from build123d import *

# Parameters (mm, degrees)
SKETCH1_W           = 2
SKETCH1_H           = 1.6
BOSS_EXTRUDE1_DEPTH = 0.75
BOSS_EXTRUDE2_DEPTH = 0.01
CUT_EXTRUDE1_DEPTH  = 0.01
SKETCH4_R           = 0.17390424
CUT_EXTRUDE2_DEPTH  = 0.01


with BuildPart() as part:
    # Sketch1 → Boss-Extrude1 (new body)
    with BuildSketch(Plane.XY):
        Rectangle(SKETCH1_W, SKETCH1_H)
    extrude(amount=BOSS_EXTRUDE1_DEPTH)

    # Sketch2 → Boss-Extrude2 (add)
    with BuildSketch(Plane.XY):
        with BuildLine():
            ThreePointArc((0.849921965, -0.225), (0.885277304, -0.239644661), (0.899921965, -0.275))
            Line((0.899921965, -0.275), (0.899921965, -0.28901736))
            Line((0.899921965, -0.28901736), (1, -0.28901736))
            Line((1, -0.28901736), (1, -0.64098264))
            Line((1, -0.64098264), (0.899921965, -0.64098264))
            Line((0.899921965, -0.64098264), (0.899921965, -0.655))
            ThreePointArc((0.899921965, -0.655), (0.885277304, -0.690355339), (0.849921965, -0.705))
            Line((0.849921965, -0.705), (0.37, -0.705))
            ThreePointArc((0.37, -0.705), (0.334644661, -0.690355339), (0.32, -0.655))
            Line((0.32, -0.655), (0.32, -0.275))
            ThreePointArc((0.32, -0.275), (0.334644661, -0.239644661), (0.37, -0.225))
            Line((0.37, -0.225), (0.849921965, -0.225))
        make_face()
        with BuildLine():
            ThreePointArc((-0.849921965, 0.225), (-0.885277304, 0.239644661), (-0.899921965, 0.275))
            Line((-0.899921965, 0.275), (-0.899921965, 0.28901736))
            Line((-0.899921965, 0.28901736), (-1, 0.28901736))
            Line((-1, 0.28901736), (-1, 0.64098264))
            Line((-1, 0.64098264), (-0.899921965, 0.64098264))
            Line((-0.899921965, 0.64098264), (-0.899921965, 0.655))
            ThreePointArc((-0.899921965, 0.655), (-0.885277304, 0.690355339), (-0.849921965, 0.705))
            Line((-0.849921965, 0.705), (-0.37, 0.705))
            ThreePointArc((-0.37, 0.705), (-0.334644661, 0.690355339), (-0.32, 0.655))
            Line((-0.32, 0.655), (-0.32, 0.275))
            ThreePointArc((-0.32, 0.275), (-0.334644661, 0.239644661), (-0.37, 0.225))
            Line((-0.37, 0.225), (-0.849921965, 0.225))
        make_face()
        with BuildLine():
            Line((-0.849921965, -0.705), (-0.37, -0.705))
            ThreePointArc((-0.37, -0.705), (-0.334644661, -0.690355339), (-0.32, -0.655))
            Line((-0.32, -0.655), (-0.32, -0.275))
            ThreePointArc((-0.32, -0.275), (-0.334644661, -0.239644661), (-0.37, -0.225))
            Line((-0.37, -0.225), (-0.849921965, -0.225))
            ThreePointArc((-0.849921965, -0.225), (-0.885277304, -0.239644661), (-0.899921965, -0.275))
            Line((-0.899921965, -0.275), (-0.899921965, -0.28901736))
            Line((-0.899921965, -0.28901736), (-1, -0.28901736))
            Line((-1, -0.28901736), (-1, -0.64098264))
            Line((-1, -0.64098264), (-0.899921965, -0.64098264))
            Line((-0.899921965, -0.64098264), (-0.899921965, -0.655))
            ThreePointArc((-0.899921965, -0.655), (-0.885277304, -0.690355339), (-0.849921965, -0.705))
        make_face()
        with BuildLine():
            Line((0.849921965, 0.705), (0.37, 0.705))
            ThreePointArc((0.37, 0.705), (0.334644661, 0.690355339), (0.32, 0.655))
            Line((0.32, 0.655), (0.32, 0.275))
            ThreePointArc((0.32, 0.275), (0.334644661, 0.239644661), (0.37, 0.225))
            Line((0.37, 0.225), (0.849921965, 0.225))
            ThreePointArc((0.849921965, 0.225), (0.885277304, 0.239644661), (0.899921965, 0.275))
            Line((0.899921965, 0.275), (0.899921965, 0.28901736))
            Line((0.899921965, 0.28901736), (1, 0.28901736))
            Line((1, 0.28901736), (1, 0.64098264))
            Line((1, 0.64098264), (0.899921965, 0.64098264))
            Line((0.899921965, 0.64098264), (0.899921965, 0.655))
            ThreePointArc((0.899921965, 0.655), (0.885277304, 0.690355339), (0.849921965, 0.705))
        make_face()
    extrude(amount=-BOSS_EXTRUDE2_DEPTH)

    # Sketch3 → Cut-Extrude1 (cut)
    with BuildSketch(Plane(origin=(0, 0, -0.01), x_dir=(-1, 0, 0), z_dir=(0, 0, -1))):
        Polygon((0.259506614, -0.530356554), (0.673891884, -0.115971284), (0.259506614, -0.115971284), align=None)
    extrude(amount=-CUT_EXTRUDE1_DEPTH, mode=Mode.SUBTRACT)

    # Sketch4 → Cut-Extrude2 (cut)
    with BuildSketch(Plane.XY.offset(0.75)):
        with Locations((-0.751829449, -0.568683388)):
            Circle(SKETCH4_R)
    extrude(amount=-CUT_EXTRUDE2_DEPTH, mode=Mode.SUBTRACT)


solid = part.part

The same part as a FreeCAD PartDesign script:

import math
import FreeCAD as App
import Part
import Sketcher


def add_polygon(sketch, points):
    """Adds a closed chain of lines whose ends are joined by coincident constraints."""
    first, n = sketch.GeometryCount, len(points)
    for a, b in zip(points, points[1:] + points[:1]):
        sketch.addGeometry(Part.LineSegment(App.Vector(*a, 0), App.Vector(*b, 0)), False)
    for i in range(n):
        sketch.addConstraint(Sketcher.Constraint("Coincident", first + i, 2, first + (i + 1) % n, 1))

doc = App.newDocument("Part")
body = doc.addObject("PartDesign::Body", "Body")

sketch1 = doc.addObject("Sketcher::SketchObject", "Sketch")
body.addObject(sketch1)
sketch1.AttachmentSupport = (doc.XY_Plane, [""])
sketch1.MapMode = "FlatFace"
add_polygon(sketch1, [(-1, 0.8), (-1, -0.8), (1, -0.8), (1, 0.8)])
sketch1.addConstraint(Sketcher.Constraint("Vertical", 0))
sketch1.addConstraint(Sketcher.Constraint("Horizontal", 1))
sketch1.addConstraint(Sketcher.Constraint("Vertical", 2))
sketch1.addConstraint(Sketcher.Constraint("Horizontal", 3))
sketch1.addConstraint(Sketcher.Constraint("Symmetric", 0, 2, 2, 2, -1, 1))
sketch1.addConstraint(Sketcher.Constraint("DistanceX", 1, 1, 1, 2, 2.0))
sketch1.addConstraint(Sketcher.Constraint("DistanceY", 0, 2, 0, 1, 1.6))
pad1 = doc.addObject("PartDesign::Pad", "Pad")
body.addObject(pad1)
pad1.Profile = sketch1
pad1.Length = 0.75

sketch2 = doc.addObject("Sketcher::SketchObject", "Sketch001")
body.addObject(sketch2)
sketch2.AttachmentSupport = (doc.XY_Plane, [""])
sketch2.MapMode = "FlatFace"
sketch2.addGeometry(Part.ArcOfCircle(Part.Circle(App.Vector(0.849922, -0.275, 0), App.Vector(0, 0, 1), 0.05), math.radians(0), math.radians(90)), False)
sketch2.addGeometry(Part.LineSegment(App.Vector(0.849922, -0.225, 0), App.Vector(0.37, -0.225, 0)), False)
sketch2.addGeometry(Part.ArcOfCircle(Part.Circle(App.Vector(0.37, -0.275, 0), App.Vector(0, 0, 1), 0.05), math.radians(90), math.radians(180)), False)
sketch2.addGeometry(Part.LineSegment(App.Vector(0.32, -0.275, 0), App.Vector(0.32, -0.655, 0)), False)
sketch2.addGeometry(Part.ArcOfCircle(Part.Circle(App.Vector(0.37, -0.655, 0), App.Vector(0, 0, 1), 0.05), math.radians(180), math.radians(270)), False)
sketch2.addGeometry(Part.LineSegment(App.Vector(0.37, -0.705, 0), App.Vector(0.849922, -0.705, 0)), False)
sketch2.addGeometry(Part.ArcOfCircle(Part.Circle(App.Vector(0.849922, -0.655, 0), App.Vector(0, 0, 1), 0.05), math.radians(-90), math.radians(0)), False)
sketch2.addGeometry(Part.LineSegment(App.Vector(0.899922, -0.655, 0), App.Vector(0.899922, -0.640983, 0)), False)
sketch2.addGeometry(Part.LineSegment(App.Vector(0.899922, -0.640983, 0), App.Vector(1, -0.640983, 0)), False)
sketch2.addGeometry(Part.LineSegment(App.Vector(1, -0.640983, 0), App.Vector(1, -0.289017, 0)), False)
sketch2.addGeometry(Part.LineSegment(App.Vector(1, -0.289017, 0), App.Vector(0.899922, -0.289017, 0)), False)
sketch2.addGeometry(Part.LineSegment(App.Vector(0.899922, -0.289017, 0), App.Vector(0.899922, -0.275, 0)), False)
sketch2.addGeometry(Part.ArcOfCircle(Part.Circle(App.Vector(-0.849922, 0.275, 0), App.Vector(0, 0, 1), 0.05), math.radians(180), math.radians(270)), False)
sketch2.addGeometry(Part.LineSegment(App.Vector(-0.849922, 0.225, 0), App.Vector(-0.37, 0.225, 0)), False)
sketch2.addGeometry(Part.ArcOfCircle(Part.Circle(App.Vector(-0.37, 0.275, 0), App.Vector(0, 0, 1), 0.05), math.radians(-90), math.radians(0)), False)
sketch2.addGeometry(Part.LineSegment(App.Vector(-0.32, 0.275, 0), App.Vector(-0.32, 0.655, 0)), False)
sketch2.addGeometry(Part.ArcOfCircle(Part.Circle(App.Vector(-0.37, 0.655, 0), App.Vector(0, 0, 1), 0.05), math.radians(0), math.radians(90)), False)
sketch2.addGeometry(Part.LineSegment(App.Vector(-0.37, 0.705, 0), App.Vector(-0.849922, 0.705, 0)), False)
sketch2.addGeometry(Part.ArcOfCircle(Part.Circle(App.Vector(-0.849922, 0.655, 0), App.Vector(0, 0, 1), 0.05), math.radians(90), math.radians(180)), False)
sketch2.addGeometry(Part.LineSegment(App.Vector(-0.899922, 0.655, 0), App.Vector(-0.899922, 0.640983, 0)), False)
sketch2.addGeometry(Part.LineSegment(App.Vector(-0.899922, 0.640983, 0), App.Vector(-1, 0.640983, 0)), False)
sketch2.addGeometry(Part.LineSegment(App.Vector(-1, 0.640983, 0), App.Vector(-1, 0.289017, 0)), False)
sketch2.addGeometry(Part.LineSegment(App.Vector(-1, 0.289017, 0), App.Vector(-0.899922, 0.289017, 0)), False)
sketch2.addGeometry(Part.LineSegment(App.Vector(-0.899922, 0.289017, 0), App.Vector(-0.899922, 0.275, 0)), False)
sketch2.addGeometry(Part.LineSegment(App.Vector(-0.849922, -0.705, 0), App.Vector(-0.37, -0.705, 0)), False)
sketch2.addGeometry(Part.ArcOfCircle(Part.Circle(App.Vector(-0.37, -0.655, 0), App.Vector(0, 0, 1), 0.05), math.radians(-90), math.radians(0)), False)
sketch2.addGeometry(Part.LineSegment(App.Vector(-0.32, -0.655, 0), App.Vector(-0.32, -0.275, 0)), False)
sketch2.addGeometry(Part.ArcOfCircle(Part.Circle(App.Vector(-0.37, -0.275, 0), App.Vector(0, 0, 1), 0.05), math.radians(0), math.radians(90)), False)
sketch2.addGeometry(Part.LineSegment(App.Vector(-0.37, -0.225, 0), App.Vector(-0.849922, -0.225, 0)), False)
sketch2.addGeometry(Part.ArcOfCircle(Part.Circle(App.Vector(-0.849922, -0.275, 0), App.Vector(0, 0, 1), 0.05), math.radians(90), math.radians(180)), False)
sketch2.addGeometry(Part.LineSegment(App.Vector(-0.899922, -0.275, 0), App.Vector(-0.899922, -0.289017, 0)), False)
sketch2.addGeometry(Part.LineSegment(App.Vector(-0.899922, -0.289017, 0), App.Vector(-1, -0.289017, 0)), False)
sketch2.addGeometry(Part.LineSegment(App.Vector(-1, -0.289017, 0), App.Vector(-1, -0.640983, 0)), False)
sketch2.addGeometry(Part.LineSegment(App.Vector(-1, -0.640983, 0), App.Vector(-0.899922, -0.640983, 0)), False)
sketch2.addGeometry(Part.LineSegment(App.Vector(-0.899922, -0.640983, 0), App.Vector(-0.899922, -0.655, 0)), False)
sketch2.addGeometry(Part.ArcOfCircle(Part.Circle(App.Vector(-0.849922, -0.655, 0), App.Vector(0, 0, 1), 0.05), math.radians(180), math.radians(270)), False)
sketch2.addGeometry(Part.LineSegment(App.Vector(0.849922, 0.705, 0), App.Vector(0.37, 0.705, 0)), False)
sketch2.addGeometry(Part.ArcOfCircle(Part.Circle(App.Vector(0.37, 0.655, 0), App.Vector(0, 0, 1), 0.05), math.radians(90), math.radians(180)), False)
sketch2.addGeometry(Part.LineSegment(App.Vector(0.32, 0.655, 0), App.Vector(0.32, 0.275, 0)), False)
sketch2.addGeometry(Part.ArcOfCircle(Part.Circle(App.Vector(0.37, 0.275, 0), App.Vector(0, 0, 1), 0.05), math.radians(180), math.radians(270)), False)
sketch2.addGeometry(Part.LineSegment(App.Vector(0.37, 0.225, 0), App.Vector(0.849922, 0.225, 0)), False)
sketch2.addGeometry(Part.ArcOfCircle(Part.Circle(App.Vector(0.849922, 0.275, 0), App.Vector(0, 0, 1), 0.05), math.radians(-90), math.radians(0)), False)
sketch2.addGeometry(Part.LineSegment(App.Vector(0.899922, 0.275, 0), App.Vector(0.899922, 0.289017, 0)), False)
sketch2.addGeometry(Part.LineSegment(App.Vector(0.899922, 0.289017, 0), App.Vector(1, 0.289017, 0)), False)
sketch2.addGeometry(Part.LineSegment(App.Vector(1, 0.289017, 0), App.Vector(1, 0.640983, 0)), False)
sketch2.addGeometry(Part.LineSegment(App.Vector(1, 0.640983, 0), App.Vector(0.899922, 0.640983, 0)), False)
sketch2.addGeometry(Part.LineSegment(App.Vector(0.899922, 0.640983, 0), App.Vector(0.899922, 0.655, 0)), False)
sketch2.addGeometry(Part.ArcOfCircle(Part.Circle(App.Vector(0.849922, 0.655, 0), App.Vector(0, 0, 1), 0.05), math.radians(0), math.radians(90)), False)
sketch2.addConstraint(Sketcher.Constraint("Tangent", 0, 2, 1, 1))
sketch2.addConstraint(Sketcher.Constraint("Tangent", 1, 2, 2, 1))
sketch2.addConstraint(Sketcher.Constraint("Tangent", 2, 2, 3, 1))
sketch2.addConstraint(Sketcher.Constraint("Tangent", 3, 2, 4, 1))
sketch2.addConstraint(Sketcher.Constraint("Tangent", 4, 2, 5, 1))
sketch2.addConstraint(Sketcher.Constraint("Tangent", 5, 2, 6, 1))
sketch2.addConstraint(Sketcher.Constraint("Tangent", 6, 2, 7, 1))
sketch2.addConstraint(Sketcher.Constraint("Coincident", 7, 2, 8, 1))
sketch2.addConstraint(Sketcher.Constraint("Coincident", 8, 2, 9, 1))
sketch2.addConstraint(Sketcher.Constraint("Coincident", 9, 2, 10, 1))
sketch2.addConstraint(Sketcher.Constraint("Coincident", 10, 2, 11, 1))
sketch2.addConstraint(Sketcher.Constraint("Tangent", 11, 2, 0, 1))
sketch2.addConstraint(Sketcher.Constraint("Tangent", 12, 2, 13, 1))
sketch2.addConstraint(Sketcher.Constraint("Tangent", 13, 2, 14, 1))
sketch2.addConstraint(Sketcher.Constraint("Tangent", 14, 2, 15, 1))
sketch2.addConstraint(Sketcher.Constraint("Tangent", 15, 2, 16, 1))
sketch2.addConstraint(Sketcher.Constraint("Tangent", 16, 2, 17, 1))
sketch2.addConstraint(Sketcher.Constraint("Tangent", 17, 2, 18, 1))
sketch2.addConstraint(Sketcher.Constraint("Tangent", 18, 2, 19, 1))
sketch2.addConstraint(Sketcher.Constraint("Coincident", 19, 2, 20, 1))
sketch2.addConstraint(Sketcher.Constraint("Coincident", 20, 2, 21, 1))
sketch2.addConstraint(Sketcher.Constraint("Coincident", 21, 2, 22, 1))
sketch2.addConstraint(Sketcher.Constraint("Coincident", 22, 2, 23, 1))
sketch2.addConstraint(Sketcher.Constraint("Tangent", 23, 2, 12, 1))
sketch2.addConstraint(Sketcher.Constraint("Tangent", 24, 2, 25, 1))
sketch2.addConstraint(Sketcher.Constraint("Tangent", 25, 2, 26, 1))
sketch2.addConstraint(Sketcher.Constraint("Tangent", 26, 2, 27, 1))
sketch2.addConstraint(Sketcher.Constraint("Tangent", 27, 2, 28, 1))
sketch2.addConstraint(Sketcher.Constraint("Tangent", 28, 2, 29, 1))
sketch2.addConstraint(Sketcher.Constraint("Tangent", 29, 2, 30, 1))
sketch2.addConstraint(Sketcher.Constraint("Coincident", 30, 2, 31, 1))
sketch2.addConstraint(Sketcher.Constraint("Coincident", 31, 2, 32, 1))
sketch2.addConstraint(Sketcher.Constraint("Coincident", 32, 2, 33, 1))
sketch2.addConstraint(Sketcher.Constraint("Coincident", 33, 2, 34, 1))
sketch2.addConstraint(Sketcher.Constraint("Tangent", 34, 2, 35, 1))
sketch2.addConstraint(Sketcher.Constraint("Tangent", 35, 2, 24, 1))
sketch2.addConstraint(Sketcher.Constraint("Tangent", 36, 2, 37, 1))
sketch2.addConstraint(Sketcher.Constraint("Tangent", 37, 2, 38, 1))
sketch2.addConstraint(Sketcher.Constraint("Tangent", 38, 2, 39, 1))
sketch2.addConstraint(Sketcher.Constraint("Tangent", 39, 2, 40, 1))
sketch2.addConstraint(Sketcher.Constraint("Tangent", 40, 2, 41, 1))
sketch2.addConstraint(Sketcher.Constraint("Tangent", 41, 2, 42, 1))
sketch2.addConstraint(Sketcher.Constraint("Coincident", 42, 2, 43, 1))
sketch2.addConstraint(Sketcher.Constraint("Coincident", 43, 2, 44, 1))
sketch2.addConstraint(Sketcher.Constraint("Coincident", 44, 2, 45, 1))
sketch2.addConstraint(Sketcher.Constraint("Coincident", 45, 2, 46, 1))
sketch2.addConstraint(Sketcher.Constraint("Tangent", 46, 2, 47, 1))
sketch2.addConstraint(Sketcher.Constraint("Tangent", 47, 2, 36, 1))
sketch2.addConstraint(Sketcher.Constraint("Horizontal", 1))
sketch2.addConstraint(Sketcher.Constraint("Vertical", 3))
sketch2.addConstraint(Sketcher.Constraint("Horizontal", 5))
sketch2.addConstraint(Sketcher.Constraint("Vertical", 7))
sketch2.addConstraint(Sketcher.Constraint("Horizontal", 8))
sketch2.addConstraint(Sketcher.Constraint("Vertical", 9))
sketch2.addConstraint(Sketcher.Constraint("Horizontal", 10))
sketch2.addConstraint(Sketcher.Constraint("Vertical", 11))
sketch2.addConstraint(Sketcher.Constraint("Horizontal", 13))
sketch2.addConstraint(Sketcher.Constraint("Vertical", 15))
sketch2.addConstraint(Sketcher.Constraint("Horizontal", 17))
sketch2.addConstraint(Sketcher.Constraint("Vertical", 19))
sketch2.addConstraint(Sketcher.Constraint("Horizontal", 20))
sketch2.addConstraint(Sketcher.Constraint("Vertical", 21))
sketch2.addConstraint(Sketcher.Constraint("Horizontal", 22))
sketch2.addConstraint(Sketcher.Constraint("Vertical", 23))
sketch2.addConstraint(Sketcher.Constraint("Horizontal", 24))
sketch2.addConstraint(Sketcher.Constraint("Vertical", 26))
sketch2.addConstraint(Sketcher.Constraint("Horizontal", 28))
sketch2.addConstraint(Sketcher.Constraint("Vertical", 30))
sketch2.addConstraint(Sketcher.Constraint("Horizontal", 31))
sketch2.addConstraint(Sketcher.Constraint("Vertical", 32))
sketch2.addConstraint(Sketcher.Constraint("Horizontal", 33))
sketch2.addConstraint(Sketcher.Constraint("Vertical", 34))
sketch2.addConstraint(Sketcher.Constraint("Horizontal", 36))
sketch2.addConstraint(Sketcher.Constraint("Vertical", 38))
sketch2.addConstraint(Sketcher.Constraint("Horizontal", 40))
sketch2.addConstraint(Sketcher.Constraint("Vertical", 42))
sketch2.addConstraint(Sketcher.Constraint("Horizontal", 43))
sketch2.addConstraint(Sketcher.Constraint("Vertical", 44))
sketch2.addConstraint(Sketcher.Constraint("Horizontal", 45))
sketch2.addConstraint(Sketcher.Constraint("Vertical", 46))
sketch2.addConstraint(Sketcher.Constraint("Equal", 0, 2))
sketch2.addConstraint(Sketcher.Constraint("Equal", 2, 4))
sketch2.addConstraint(Sketcher.Constraint("Equal", 4, 6))
sketch2.addConstraint(Sketcher.Constraint("Equal", 6, 12))
sketch2.addConstraint(Sketcher.Constraint("Equal", 12, 14))
sketch2.addConstraint(Sketcher.Constraint("Equal", 14, 16))
sketch2.addConstraint(Sketcher.Constraint("Equal", 16, 18))
sketch2.addConstraint(Sketcher.Constraint("Equal", 18, 25))
sketch2.addConstraint(Sketcher.Constraint("Equal", 25, 27))
sketch2.addConstraint(Sketcher.Constraint("Equal", 27, 29))
sketch2.addConstraint(Sketcher.Constraint("Equal", 29, 35))
sketch2.addConstraint(Sketcher.Constraint("Equal", 35, 37))
sketch2.addConstraint(Sketcher.Constraint("Equal", 37, 39))
sketch2.addConstraint(Sketcher.Constraint("Equal", 39, 41))
sketch2.addConstraint(Sketcher.Constraint("Equal", 41, 47))
sketch2.addConstraint(Sketcher.Constraint("Symmetric", 0, 3, 12, 3, -1, 1))
sketch2.addConstraint(Sketcher.Constraint("Symmetric", 4, 3, 16, 3, -1, 1))
sketch2.addConstraint(Sketcher.Constraint("Symmetric", 25, 3, 37, 3, -1, 1))
sketch2.addConstraint(Sketcher.Constraint("Symmetric", 29, 3, 41, 3, -1, 1))
sketch2.addConstraint(Sketcher.Constraint("Symmetric", 7, 2, 19, 2, -1, 1))
sketch2.addConstraint(Sketcher.Constraint("Symmetric", 9, 2, 21, 2, -1, 1))
sketch2.addConstraint(Sketcher.Constraint("Symmetric", 31, 2, 43, 2, -1, 1))
sketch2.addConstraint(Sketcher.Constraint("Symmetric", 33, 2, 45, 2, -1, 1))
sketch2.addConstraint(Sketcher.Constraint("Symmetric", 4, 3, 25, 3, -2))
sketch2.addConstraint(Sketcher.Constraint("Symmetric", 0, 3, 29, 3, -2))
sketch2.addConstraint(Sketcher.Constraint("Symmetric", 9, 2, 31, 2, -2))
sketch2.addConstraint(Sketcher.Constraint("Symmetric", 7, 2, 33, 2, -2))
sketch2.addConstraint(Sketcher.Constraint("Vertical", 0, 3, 6, 3))
sketch2.addConstraint(Sketcher.Constraint("Equal", 7, 11))
sketch2.addConstraint(Sketcher.Constraint("Radius", 0, 0.05))
sketch2.addConstraint(Sketcher.Constraint("DistanceX", -1, 1, 8, 2, 1.0))
sketch2.addConstraint(Sketcher.Constraint("DistanceY", 3, 2, 3, 1, 0.38))
sketch2.addConstraint(Sketcher.Constraint("DistanceX", -1, 1, 2, 3, 0.37))
sketch2.addConstraint(Sketcher.Constraint("DistanceY", 0, 3, -1, 1, 0.275))
sketch2.addConstraint(Sketcher.Constraint("DistanceX", 1, 2, 1, 1, 0.479922))
sketch2.addConstraint(Sketcher.Constraint("DistanceY", 7, 1, 7, 2, 0.014017))
pad2 = doc.addObject("PartDesign::Pad", "Pad001")
body.addObject(pad2)
pad2.Profile = sketch2
pad2.Length = 0.01
pad2.Reversed = True

sketch3 = doc.addObject("Sketcher::SketchObject", "Sketch002")
body.addObject(sketch3)
sketch3.AttachmentSupport = (doc.XY_Plane, [""])
sketch3.MapMode = "FlatFace"
sketch3.AttachmentOffset = App.Placement(App.Vector(0, 0, -0.01), App.Rotation())
add_polygon(sketch3, [(-0.259507, -0.530357), (-0.673892, -0.115971), (-0.259507, -0.115971)])
sketch3.addConstraint(Sketcher.Constraint("Horizontal", 1))
sketch3.addConstraint(Sketcher.Constraint("Vertical", 2))
sketch3.addConstraint(Sketcher.Constraint("Equal", 1, 2))
sketch3.addConstraint(Sketcher.Constraint("Distance", 0, 0.586029))
sketch3.addConstraint(Sketcher.Constraint("DistanceX", 0, 2, -1, 1, 0.673892))
sketch3.addConstraint(Sketcher.Constraint("DistanceY", 0, 2, -1, 1, 0.115971))
pocket1 = doc.addObject("PartDesign::Pocket", "Pocket")
body.addObject(pocket1)
pocket1.Profile = sketch3
pocket1.Length = 0.01
pocket1.Reversed = True

sketch4 = doc.addObject("Sketcher::SketchObject", "Sketch003")
body.addObject(sketch4)
sketch4.AttachmentSupport = (doc.XY_Plane, [""])
sketch4.MapMode = "FlatFace"
sketch4.AttachmentOffset = App.Placement(App.Vector(0, 0, 0.75), App.Rotation())
sketch4.addGeometry(Part.Circle(App.Vector(-0.751829, -0.568683, 0), App.Vector(0, 0, 1), 0.173904), False)
sketch4.addConstraint(Sketcher.Constraint("Diameter", 0, 0.347808))
sketch4.addConstraint(Sketcher.Constraint("DistanceX", 0, 3, -1, 1, 0.751829))
sketch4.addConstraint(Sketcher.Constraint("DistanceY", 0, 3, -1, 1, 0.568683))
pocket2 = doc.addObject("PartDesign::Pocket", "Pocket001")
body.addObject(pocket2)
pocket2.Profile = sketch4
pocket2.Length = 0.01

doc.recompute()
